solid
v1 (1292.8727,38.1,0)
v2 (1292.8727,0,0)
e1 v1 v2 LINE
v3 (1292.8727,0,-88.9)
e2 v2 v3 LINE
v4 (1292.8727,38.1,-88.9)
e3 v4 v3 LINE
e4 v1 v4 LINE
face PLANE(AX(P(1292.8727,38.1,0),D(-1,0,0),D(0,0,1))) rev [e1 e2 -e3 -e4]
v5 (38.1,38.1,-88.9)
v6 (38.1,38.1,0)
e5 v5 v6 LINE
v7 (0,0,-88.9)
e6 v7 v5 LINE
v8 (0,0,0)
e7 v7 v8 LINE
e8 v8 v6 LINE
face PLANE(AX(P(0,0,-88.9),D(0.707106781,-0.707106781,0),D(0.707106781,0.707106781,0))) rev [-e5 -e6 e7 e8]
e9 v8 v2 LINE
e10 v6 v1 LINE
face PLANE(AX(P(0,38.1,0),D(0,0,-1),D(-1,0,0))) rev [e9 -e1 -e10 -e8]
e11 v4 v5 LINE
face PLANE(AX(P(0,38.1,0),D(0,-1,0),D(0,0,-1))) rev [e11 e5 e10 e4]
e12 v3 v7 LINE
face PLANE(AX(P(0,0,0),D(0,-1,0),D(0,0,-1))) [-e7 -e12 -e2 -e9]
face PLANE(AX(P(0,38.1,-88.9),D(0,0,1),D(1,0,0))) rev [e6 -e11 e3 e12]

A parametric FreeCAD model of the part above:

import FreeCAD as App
import Part
import Sketcher
Q = App.Units.Quantity

doc = App.newDocument("Part")
body = doc.addObject("PartDesign::Body", "Body")

sketch1 = doc.addObject("Sketcher::SketchObject", "Sketch")
body.addObject(sketch1)
sketch1.AttachmentSupport = (doc.XZ_Plane, [""])
sketch1.MapMode = "FlatFace"
sketch1.addGeometry([
    Part.LineSegment(App.Vector(0, -89, 0), App.Vector(0, 0, 0)),
    Part.LineSegment(App.Vector(0, 0, 0), App.Vector(1293, 0, 0)),
    Part.LineSegment(App.Vector(1293, 0, 0), App.Vector(1293, -89, 0)),
    Part.LineSegment(App.Vector(1293, -89, 0), App.Vector(0, -89, 0)),
], False)
sketch1.addConstraint([
    Sketcher.Constraint("Coincident", 0, 2, 1, 1),
    Sketcher.Constraint("Coincident", 1, 2, 2, 1),
    Sketcher.Constraint("Coincident", 2, 2, 3, 1),
    Sketcher.Constraint("Coincident", 3, 2, 0, 1),
    Sketcher.Constraint("Vertical", 0),
    Sketcher.Constraint("Horizontal", 1),
    Sketcher.Constraint("Vertical", 2),
    Sketcher.Constraint("Horizontal", 3),
    Sketcher.Constraint("Coincident", 0, 2, -1, 1),
    Sketcher.Constraint("DistanceY", 0, 1, 0, 2, Q("3.5 in")),
    Sketcher.Constraint("DistanceX", 1, 1, 1, 2, Q("50.9005 in")),
])
pad1 = doc.addObject("PartDesign::Pad", "Pad")
body.addObject(pad1)
pad1.Profile = sketch1
pad1.Length = Q("1.5 in")
pad1.Reversed = True

sketch2 = doc.addObject("Sketcher::SketchObject", "Sketch001")
body.addObject(sketch2)
sketch2.AttachmentSupport = (doc.XY_Plane, [""])
sketch2.MapMode = "FlatFace"
sketch2.addGeometry([
    Part.LineSegment(App.Vector(0, 0, 0), App.Vector(38, 38, 0)),
    Part.LineSegment(App.Vector(38, 38, 0), App.Vector(0, 38, 0)),
    Part.LineSegment(App.Vector(0, 38, 0), App.Vector(0, 0, 0)),
], False)
sketch2.addConstraint([
    Sketcher.Constraint("Coincident", 0, 2, 1, 1),
    Sketcher.Constraint("Coincident", 1, 2, 2, 1),
    Sketcher.Constraint("Coincident", 2, 2, 0, 1),
    Sketcher.Constraint("Horizontal", 1),
    Sketcher.Constraint("Vertical", 2),
    Sketcher.Constraint("Coincident", 2, 2, -1, 1),
    Sketcher.Constraint("Equal", 1, 2),
    Sketcher.Constraint("DistanceX", 1, 2, 1, 1, Q("1.5 in")),
])
pocket1 = doc.addObject("PartDesign::Pocket", "Pocket")
body.addObject(pocket1)
pocket1.Profile = sketch2
pocket1.Type = "ThroughAll"

doc.recompute()
